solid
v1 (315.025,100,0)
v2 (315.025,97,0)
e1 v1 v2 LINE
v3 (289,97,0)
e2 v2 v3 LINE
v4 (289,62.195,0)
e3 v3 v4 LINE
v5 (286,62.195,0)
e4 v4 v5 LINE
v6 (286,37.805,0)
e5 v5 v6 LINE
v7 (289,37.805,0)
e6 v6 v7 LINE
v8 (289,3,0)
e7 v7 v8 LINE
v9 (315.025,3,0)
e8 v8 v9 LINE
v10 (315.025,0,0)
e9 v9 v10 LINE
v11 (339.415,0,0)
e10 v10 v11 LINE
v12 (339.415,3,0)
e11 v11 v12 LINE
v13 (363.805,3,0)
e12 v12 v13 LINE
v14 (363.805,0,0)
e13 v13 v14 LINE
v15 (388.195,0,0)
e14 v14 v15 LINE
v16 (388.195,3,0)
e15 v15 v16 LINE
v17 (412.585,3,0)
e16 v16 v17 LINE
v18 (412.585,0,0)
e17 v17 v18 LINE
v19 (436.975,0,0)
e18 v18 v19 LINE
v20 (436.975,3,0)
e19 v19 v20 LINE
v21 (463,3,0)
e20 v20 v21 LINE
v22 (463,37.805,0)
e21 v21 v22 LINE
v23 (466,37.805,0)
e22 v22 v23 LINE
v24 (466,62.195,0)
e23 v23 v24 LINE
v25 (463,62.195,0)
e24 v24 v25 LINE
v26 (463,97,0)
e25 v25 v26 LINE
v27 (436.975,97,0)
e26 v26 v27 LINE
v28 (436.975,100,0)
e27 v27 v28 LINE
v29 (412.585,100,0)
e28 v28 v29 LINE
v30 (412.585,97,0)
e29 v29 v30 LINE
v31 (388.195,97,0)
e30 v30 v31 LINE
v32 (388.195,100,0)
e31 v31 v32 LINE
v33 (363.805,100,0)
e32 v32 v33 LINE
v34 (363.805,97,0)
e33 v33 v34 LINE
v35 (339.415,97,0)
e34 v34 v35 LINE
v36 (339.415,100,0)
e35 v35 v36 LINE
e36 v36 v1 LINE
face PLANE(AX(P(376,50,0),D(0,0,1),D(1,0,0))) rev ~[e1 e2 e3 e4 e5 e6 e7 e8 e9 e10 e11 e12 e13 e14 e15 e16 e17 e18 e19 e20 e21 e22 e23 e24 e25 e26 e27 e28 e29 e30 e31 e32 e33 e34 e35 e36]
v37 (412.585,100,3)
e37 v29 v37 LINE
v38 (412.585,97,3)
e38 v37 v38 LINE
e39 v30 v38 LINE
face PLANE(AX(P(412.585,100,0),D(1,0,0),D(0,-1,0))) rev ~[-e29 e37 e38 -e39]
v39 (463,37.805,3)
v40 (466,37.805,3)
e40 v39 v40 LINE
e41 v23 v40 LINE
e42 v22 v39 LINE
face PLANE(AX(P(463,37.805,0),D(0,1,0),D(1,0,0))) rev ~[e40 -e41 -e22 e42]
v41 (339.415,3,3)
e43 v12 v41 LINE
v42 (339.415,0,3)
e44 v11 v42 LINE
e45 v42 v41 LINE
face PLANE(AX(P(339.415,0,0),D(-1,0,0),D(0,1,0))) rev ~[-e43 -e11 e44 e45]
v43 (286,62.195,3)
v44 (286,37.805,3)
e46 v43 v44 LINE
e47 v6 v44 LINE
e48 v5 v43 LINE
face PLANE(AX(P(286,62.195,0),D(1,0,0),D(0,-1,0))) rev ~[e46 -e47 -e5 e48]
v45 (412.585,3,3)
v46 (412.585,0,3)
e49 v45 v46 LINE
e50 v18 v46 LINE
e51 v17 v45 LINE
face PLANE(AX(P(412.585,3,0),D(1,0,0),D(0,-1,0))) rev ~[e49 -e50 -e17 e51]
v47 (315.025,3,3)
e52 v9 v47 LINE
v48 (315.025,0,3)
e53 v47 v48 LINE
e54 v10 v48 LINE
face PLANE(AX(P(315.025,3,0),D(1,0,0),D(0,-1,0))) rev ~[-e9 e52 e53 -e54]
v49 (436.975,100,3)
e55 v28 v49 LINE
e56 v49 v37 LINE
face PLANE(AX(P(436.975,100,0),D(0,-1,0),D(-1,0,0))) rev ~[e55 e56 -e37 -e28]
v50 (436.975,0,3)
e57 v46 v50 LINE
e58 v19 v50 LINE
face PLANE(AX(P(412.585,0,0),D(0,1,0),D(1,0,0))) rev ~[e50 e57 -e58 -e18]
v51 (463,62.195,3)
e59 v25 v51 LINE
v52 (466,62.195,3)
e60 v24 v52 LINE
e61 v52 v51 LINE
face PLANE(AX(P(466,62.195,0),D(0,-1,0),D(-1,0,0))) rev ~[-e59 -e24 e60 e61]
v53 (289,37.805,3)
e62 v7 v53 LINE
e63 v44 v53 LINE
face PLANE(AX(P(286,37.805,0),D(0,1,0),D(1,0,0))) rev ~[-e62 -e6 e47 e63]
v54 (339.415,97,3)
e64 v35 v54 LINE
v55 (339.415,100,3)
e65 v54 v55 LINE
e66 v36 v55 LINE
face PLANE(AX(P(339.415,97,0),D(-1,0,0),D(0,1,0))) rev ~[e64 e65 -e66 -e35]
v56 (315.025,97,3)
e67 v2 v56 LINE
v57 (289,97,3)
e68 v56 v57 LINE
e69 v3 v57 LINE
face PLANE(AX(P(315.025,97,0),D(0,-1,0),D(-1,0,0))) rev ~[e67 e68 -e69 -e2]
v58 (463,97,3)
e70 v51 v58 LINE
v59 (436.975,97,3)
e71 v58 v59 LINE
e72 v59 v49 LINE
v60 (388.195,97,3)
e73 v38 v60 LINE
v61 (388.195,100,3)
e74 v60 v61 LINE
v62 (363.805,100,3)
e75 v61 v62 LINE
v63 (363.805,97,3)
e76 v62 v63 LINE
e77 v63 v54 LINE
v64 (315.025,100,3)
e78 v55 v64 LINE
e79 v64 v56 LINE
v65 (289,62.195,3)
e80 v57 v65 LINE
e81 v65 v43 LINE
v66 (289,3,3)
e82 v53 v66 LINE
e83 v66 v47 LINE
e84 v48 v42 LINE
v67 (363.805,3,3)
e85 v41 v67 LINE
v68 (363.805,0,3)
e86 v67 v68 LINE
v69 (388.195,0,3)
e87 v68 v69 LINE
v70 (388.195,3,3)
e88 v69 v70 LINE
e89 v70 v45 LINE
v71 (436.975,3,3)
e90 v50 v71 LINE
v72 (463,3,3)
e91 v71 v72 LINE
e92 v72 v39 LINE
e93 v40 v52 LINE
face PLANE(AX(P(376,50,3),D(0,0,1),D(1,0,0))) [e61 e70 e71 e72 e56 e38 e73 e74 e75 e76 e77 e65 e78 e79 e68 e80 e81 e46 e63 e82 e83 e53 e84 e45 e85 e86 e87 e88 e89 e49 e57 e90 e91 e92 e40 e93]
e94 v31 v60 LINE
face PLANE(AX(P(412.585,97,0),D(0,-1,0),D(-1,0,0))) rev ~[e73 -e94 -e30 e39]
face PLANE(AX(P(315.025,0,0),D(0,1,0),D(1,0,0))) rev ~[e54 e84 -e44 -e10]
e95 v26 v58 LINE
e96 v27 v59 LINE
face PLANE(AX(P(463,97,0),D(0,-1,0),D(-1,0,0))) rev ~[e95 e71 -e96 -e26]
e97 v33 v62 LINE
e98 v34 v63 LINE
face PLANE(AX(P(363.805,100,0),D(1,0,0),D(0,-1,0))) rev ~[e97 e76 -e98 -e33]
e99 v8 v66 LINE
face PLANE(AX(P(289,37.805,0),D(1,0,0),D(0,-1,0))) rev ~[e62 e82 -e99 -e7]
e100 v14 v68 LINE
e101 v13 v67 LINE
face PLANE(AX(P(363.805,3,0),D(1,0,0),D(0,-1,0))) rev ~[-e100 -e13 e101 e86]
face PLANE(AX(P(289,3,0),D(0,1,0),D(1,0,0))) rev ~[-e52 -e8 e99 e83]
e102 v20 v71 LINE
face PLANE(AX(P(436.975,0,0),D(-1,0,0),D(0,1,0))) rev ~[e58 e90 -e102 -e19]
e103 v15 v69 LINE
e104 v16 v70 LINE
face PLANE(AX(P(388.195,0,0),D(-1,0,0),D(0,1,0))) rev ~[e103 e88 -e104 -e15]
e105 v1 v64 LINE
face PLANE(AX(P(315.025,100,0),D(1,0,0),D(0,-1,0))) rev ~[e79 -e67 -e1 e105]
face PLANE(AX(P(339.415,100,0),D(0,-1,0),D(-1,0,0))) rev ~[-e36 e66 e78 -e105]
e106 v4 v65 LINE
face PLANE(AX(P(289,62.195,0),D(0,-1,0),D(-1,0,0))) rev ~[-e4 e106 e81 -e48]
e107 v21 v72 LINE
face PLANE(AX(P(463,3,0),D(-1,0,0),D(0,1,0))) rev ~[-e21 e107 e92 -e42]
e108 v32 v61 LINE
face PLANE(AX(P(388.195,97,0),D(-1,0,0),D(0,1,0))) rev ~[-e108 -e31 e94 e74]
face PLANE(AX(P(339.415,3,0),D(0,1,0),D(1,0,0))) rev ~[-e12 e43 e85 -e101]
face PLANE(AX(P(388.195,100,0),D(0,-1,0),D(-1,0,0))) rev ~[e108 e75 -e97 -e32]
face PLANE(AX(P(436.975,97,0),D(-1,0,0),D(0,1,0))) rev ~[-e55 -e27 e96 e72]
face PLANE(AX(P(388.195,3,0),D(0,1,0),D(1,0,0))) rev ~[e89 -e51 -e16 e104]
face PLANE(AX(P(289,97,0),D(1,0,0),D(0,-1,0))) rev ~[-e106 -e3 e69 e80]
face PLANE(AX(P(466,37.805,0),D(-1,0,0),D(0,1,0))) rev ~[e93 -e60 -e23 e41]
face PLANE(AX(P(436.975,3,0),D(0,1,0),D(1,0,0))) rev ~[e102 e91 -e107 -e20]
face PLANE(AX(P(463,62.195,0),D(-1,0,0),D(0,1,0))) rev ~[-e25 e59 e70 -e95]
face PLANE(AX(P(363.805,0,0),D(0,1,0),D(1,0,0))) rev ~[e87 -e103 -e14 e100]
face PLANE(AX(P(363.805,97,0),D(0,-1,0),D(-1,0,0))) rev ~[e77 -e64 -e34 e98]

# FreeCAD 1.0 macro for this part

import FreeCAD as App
import Part
import Sketcher
from FreeCAD import Vector

doc = App.newDocument("Part")
body = doc.addObject("PartDesign::Body", "Body")

# Sketch on XY plane
sketch1 = body.newObject("Sketcher::SketchObject", "Sketch")
sketch1.AttachmentSupport = (doc.getObject("XY_Plane"), [""])
sketch1.MapMode = "FlatFace"
sketch1.addGeometry([
    Part.LineSegment(Vector(289, 97, 0), Vector(289, 62.195, 0)),  # 0
    Part.LineSegment(Vector(289, 62.195, 0), Vector(286, 62.195, 0)),  # 1
    Part.LineSegment(Vector(286, 62.195, 0), Vector(286, 37.805, 0)),  # 2
    Part.LineSegment(Vector(286, 37.805, 0), Vector(289, 37.805, 0)),  # 3
    Part.LineSegment(Vector(289, 37.805, 0), Vector(289, 3, 0)),  # 4
    Part.LineSegment(Vector(289, 3, 0), Vector(315.025, 3, 0)),  # 5
    Part.LineSegment(Vector(315.025, 3, 0), Vector(315.025, 0, 0)),  # 6
    Part.LineSegment(Vector(315.025, 0, 0), Vector(339.415, 0, 0)),  # 7
    Part.LineSegment(Vector(339.415, 0, 0), Vector(339.415, 3, 0)),  # 8
    Part.LineSegment(Vector(339.415, 3, 0), Vector(363.805, 3, 0)),  # 9
    Part.LineSegment(Vector(363.805, 3, 0), Vector(363.805, 0, 0)),  # 10
    Part.LineSegment(Vector(363.805, 0, 0), Vector(388.195, 0, 0)),  # 11
    Part.LineSegment(Vector(388.195, 0, 0), Vector(388.195, 3, 0)),  # 12
    Part.LineSegment(Vector(388.195, 3, 0), Vector(412.585, 3, 0)),  # 13
    Part.LineSegment(Vector(412.585, 3, 0), Vector(412.585, 0, 0)),  # 14
    Part.LineSegment(Vector(412.585, 0, 0), Vector(436.975, 0, 0)),  # 15
    Part.LineSegment(Vector(436.975, 0, 0), Vector(436.975, 3, 0)),  # 16
    Part.LineSegment(Vector(436.975, 3, 0), Vector(463, 3, 0)),  # 17
    Part.LineSegment(Vector(463, 3, 0), Vector(463, 37.805, 0)),  # 18
    Part.LineSegment(Vector(463, 37.805, 0), Vector(466, 37.805, 0)),  # 19
    Part.LineSegment(Vector(466, 37.805, 0), Vector(466, 62.195, 0)),  # 20
    Part.LineSegment(Vector(466, 62.195, 0), Vector(463, 62.195, 0)),  # 21
    Part.LineSegment(Vector(463, 62.195, 0), Vector(463, 97, 0)),  # 22
    Part.LineSegment(Vector(463, 97, 0), Vector(436.975, 97, 0)),  # 23
    Part.LineSegment(Vector(436.975, 97, 0), Vector(436.975, 100, 0)),  # 24
    Part.LineSegment(Vector(436.975, 100, 0), Vector(412.585, 100, 0)),  # 25
    Part.LineSegment(Vector(412.585, 100, 0), Vector(412.585, 97, 0)),  # 26
    Part.LineSegment(Vector(412.585, 97, 0), Vector(388.195, 97, 0)),  # 27
    Part.LineSegment(Vector(388.195, 97, 0), Vector(388.195, 100, 0)),  # 28
    Part.LineSegment(Vector(388.195, 100, 0), Vector(363.805, 100, 0)),  # 29
    Part.LineSegment(Vector(363.805, 100, 0), Vector(363.805, 97, 0)),  # 30
    Part.LineSegment(Vector(363.805, 97, 0), Vector(339.415, 97, 0)),  # 31
    Part.LineSegment(Vector(339.415, 97, 0), Vector(339.415, 100, 0)),  # 32
    Part.LineSegment(Vector(339.415, 100, 0), Vector(315.025, 100, 0)),  # 33
    Part.LineSegment(Vector(315.025, 100, 0), Vector(315.025, 97, 0)),  # 34
    Part.LineSegment(Vector(315.025, 97, 0), Vector(289, 97, 0)),  # 35
], False)
sketch1.addConstraint([
    Sketcher.Constraint("Coincident", 0, 2, 1, 1),
    Sketcher.Constraint("Coincident", 1, 2, 2, 1),
    Sketcher.Constraint("Coincident", 2, 2, 3, 1),
    Sketcher.Constraint("Coincident", 3, 2, 4, 1),
    Sketcher.Constraint("Coincident", 4, 2, 5, 1),
    Sketcher.Constraint("Coincident", 5, 2, 6, 1),
    Sketcher.Constraint("Coincident", 6, 2, 7, 1),
    Sketcher.Constraint("Coincident", 7, 2, 8, 1),
    Sketcher.Constraint("Coincident", 8, 2, 9, 1),
    Sketcher.Constraint("Coincident", 9, 2, 10, 1),
    Sketcher.Constraint("Coincident", 10, 2, 11, 1),
    Sketcher.Constraint("Coincident", 11, 2, 12, 1),
    Sketcher.Constraint("Coincident", 12, 2, 13, 1),
    Sketcher.Constraint("Coincident", 13, 2, 14, 1),
    Sketcher.Constraint("Coincident", 14, 2, 15, 1),
    Sketcher.Constraint("Coincident", 15, 2, 16, 1),
    Sketcher.Constraint("Coincident", 16, 2, 17, 1),
    Sketcher.Constraint("Coincident", 17, 2, 18, 1),
    Sketcher.Constraint("Coincident", 18, 2, 19, 1),
    Sketcher.Constraint("Coincident", 19, 2, 20, 1),
    Sketcher.Constraint("Coincident", 20, 2, 21, 1),
    Sketcher.Constraint("Coincident", 21, 2, 22, 1),
    Sketcher.Constraint("Coincident", 22, 2, 23, 1),
    Sketcher.Constraint("Coincident", 23, 2, 24, 1),
    Sketcher.Constraint("Coincident", 24, 2, 25, 1),
    Sketcher.Constraint("Coincident", 25, 2, 26, 1),
    Sketcher.Constraint("Coincident", 26, 2, 27, 1),
    Sketcher.Constraint("Coincident", 27, 2, 28, 1),
    Sketcher.Constraint("Coincident", 28, 2, 29, 1),
    Sketcher.Constraint("Coincident", 29, 2, 30, 1),
    Sketcher.Constraint("Coincident", 30, 2, 31, 1),
    Sketcher.Constraint("Coincident", 31, 2, 32, 1),
    Sketcher.Constraint("Coincident", 32, 2, 33, 1),
    Sketcher.Constraint("Coincident", 33, 2, 34, 1),
    Sketcher.Constraint("Coincident", 34, 2, 35, 1),
    Sketcher.Constraint("Coincident", 35, 2, 0, 1),
    Sketcher.Constraint("Vertical", 0),
    Sketcher.Constraint("Horizontal", 1),
    Sketcher.Constraint("Vertical", 2),
    Sketcher.Constraint("Horizontal", 3),
    Sketcher.Constraint("Vertical", 4),
    Sketcher.Constraint("Horizontal", 5),
    Sketcher.Constraint("Vertical", 6),
    Sketcher.Constraint("Horizontal", 7),
    Sketcher.Constraint("Vertical", 8),
    Sketcher.Constraint("Horizontal", 9),
    Sketcher.Constraint("Vertical", 10),
    Sketcher.Constraint("Horizontal", 11),
    Sketcher.Constraint("Vertical", 12),
    Sketcher.Constraint("Horizontal", 13),
    Sketcher.Constraint("Vertical", 14),
    Sketcher.Constraint("Horizontal", 15),
    Sketcher.Constraint("Vertical", 16),
    Sketcher.Constraint("Horizontal", 17),
    Sketcher.Constraint("Vertical", 18),
    Sketcher.Constraint("Horizontal", 19),
    Sketcher.Constraint("Vertical", 20),
    Sketcher.Constraint("Horizontal", 21),
    Sketcher.Constraint("Vertical", 22),
    Sketcher.Constraint("Horizontal", 23),
    Sketcher.Constraint("Vertical", 24),
    Sketcher.Constraint("Horizontal", 25),
    Sketcher.Constraint("Vertical", 26),
    Sketcher.Constraint("Horizontal", 27),
    Sketcher.Constraint("Vertical", 28),
    Sketcher.Constraint("Horizontal", 29),
    Sketcher.Constraint("Vertical", 30),
    Sketcher.Constraint("Horizontal", 31),
    Sketcher.Constraint("Vertical", 32),
    Sketcher.Constraint("Horizontal", 33),
    Sketcher.Constraint("Vertical", 34),
    Sketcher.Constraint("Horizontal", 35),
    Sketcher.Constraint("PointOnObject", 6, 2, -1),
    Sketcher.Constraint("PointOnObject", 10, 2, -1),
    Sketcher.Constraint("PointOnObject", 14, 2, -1),
    Sketcher.Constraint("Horizontal", 5, 2, 8, 2),
    Sketcher.Constraint("Horizontal", 9, 2, 12, 2),
    Sketcher.Constraint("Horizontal", 13, 2, 16, 2),
    Sketcher.Constraint("Horizontal", 3, 2, 18, 2),
    Sketcher.Constraint("Horizontal", 1, 2, 20, 2),
    Sketcher.Constraint("Horizontal", 23, 2, 26, 2),
    Sketcher.Constraint("Horizontal", 25, 2, 28, 2),
    Sketcher.Constraint("Horizontal", 27, 2, 30, 2),
    Sketcher.Constraint("Horizontal", 29, 2, 32, 2),
    Sketcher.Constraint("Horizontal", 31, 2, 34, 2),
    Sketcher.Constraint("Vertical", 0, 2, 3, 2),
    Sketcher.Constraint("Vertical", 18, 2, 21, 2),
    Sketcher.Constraint("Vertical", 16, 2, 23, 2),
    Sketcher.Constraint("Vertical", 14, 2, 25, 2),
    Sketcher.Constraint("Vertical", 12, 2, 27, 2),
    Sketcher.Constraint("Vertical", 10, 2, 29, 2),
    Sketcher.Constraint("Vertical", 8, 2, 31, 2),
    Sketcher.Constraint("Vertical", 6, 2, 33, 2),
    Sketcher.Constraint("Equal", 7, 9),
    Sketcher.Constraint("Equal", 9, 11),
    Sketcher.Constraint("Equal", 11, 13),
    Sketcher.Constraint("Equal", 13, 15),
    Sketcher.Constraint("Equal", 5, 17),
    Sketcher.Constraint("Equal", 3, 19),
    Sketcher.Constraint("Equal", 33, 2),
    Sketcher.Constraint("Equal", 0, 4),
    Sketcher.Constraint("Equal", 21, 6),
    Sketcher.Constraint("Equal", 16, 24),
    Sketcher.Constraint("DistanceX", 1, 2, 1, 1, 3.0),
    Sketcher.Constraint("DistanceX", -1, 1, 0, 2, 289.0),
    Sketcher.Constraint("DistanceX", -1, 1, 17, 2, 463.0),
    Sketcher.Constraint("DistanceY", -1, 1, 22, 2, 97.0),
    Sketcher.Constraint("DistanceX", 7, 1, 7, 2, 24.39),
])
pad1 = body.newObject("PartDesign::Pad", "Pad")
pad1.Profile = sketch1
pad1.Length = 3

doc.recompute()
